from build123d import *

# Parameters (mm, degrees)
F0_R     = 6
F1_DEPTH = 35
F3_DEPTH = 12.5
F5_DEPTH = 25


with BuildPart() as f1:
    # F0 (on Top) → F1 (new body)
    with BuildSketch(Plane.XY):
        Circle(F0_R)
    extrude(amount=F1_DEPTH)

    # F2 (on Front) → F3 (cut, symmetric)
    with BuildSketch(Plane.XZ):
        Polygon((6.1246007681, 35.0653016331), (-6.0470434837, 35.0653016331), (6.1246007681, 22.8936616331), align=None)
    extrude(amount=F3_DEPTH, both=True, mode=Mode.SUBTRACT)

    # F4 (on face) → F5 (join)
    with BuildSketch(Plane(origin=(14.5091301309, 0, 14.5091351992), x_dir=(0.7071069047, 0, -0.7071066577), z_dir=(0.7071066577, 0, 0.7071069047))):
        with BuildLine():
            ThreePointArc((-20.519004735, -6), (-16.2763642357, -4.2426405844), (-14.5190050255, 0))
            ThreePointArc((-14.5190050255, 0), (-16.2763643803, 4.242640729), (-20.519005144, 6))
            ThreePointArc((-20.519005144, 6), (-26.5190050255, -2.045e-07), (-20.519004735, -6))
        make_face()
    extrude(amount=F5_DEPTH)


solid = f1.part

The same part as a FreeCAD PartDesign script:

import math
import FreeCAD as App
import Part
import Sketcher
Q = App.Units.Quantity


def add_polygon(sketch, points):
    """Adds a closed chain of lines whose ends are joined by coincident constraints."""
    first, n = sketch.GeometryCount, len(points)
    for a, b in zip(points, points[1:] + points[:1]):
        sketch.addGeometry(Part.LineSegment(App.Vector(*a, 0), App.Vector(*b, 0)), False)
    for i in range(n):
        sketch.addConstraint(Sketcher.Constraint("Coincident", first + i, 2, first + (i + 1) % n, 1))

doc = App.newDocument("Part")
body = doc.addObject("PartDesign::Body", "Body")

# Sketch on XY plane
sketch1 = doc.addObject("Sketcher::SketchObject", "Sketch")
body.addObject(sketch1)
sketch1.AttachmentSupport = (doc.XY_Plane, [""])
sketch1.MapMode = "FlatFace"
sketch1.addGeometry(Part.Circle(App.Vector(0, 0, 0), App.Vector(0, 0, 1), 6), False)
sketch1.addConstraint(Sketcher.Constraint("Coincident", 0, 3, -1, 1))
sketch1.addConstraint(Sketcher.Constraint("Diameter", 0, 12.0))
pad1 = doc.addObject("PartDesign::Pad", "Pad")
body.addObject(pad1)
pad1.Profile = sketch1
pad1.Length = 35

# Sketch on XZ plane
sketch2 = doc.addObject("Sketcher::SketchObject", "Sketch001")
body.addObject(sketch2)
sketch2.AttachmentSupport = (doc.XZ_Plane, [""])
sketch2.MapMode = "FlatFace"
add_polygon(sketch2, [(6, 35), (-6, 35), (6, 23)])  # lines 0-2
sketch2.addConstraint(Sketcher.Constraint("Horizontal", 0))
sketch2.addConstraint(Sketcher.Constraint("Vertical", 2))
sketch2.addConstraint(Sketcher.Constraint("Angle", 1, Q("-44.99999 deg")))
sketch2.addConstraint(Sketcher.Constraint("Distance", 1, 17.213301))
sketch2.addConstraint(Sketcher.Constraint("DistanceY", -1, 1, 0, 2, 35.065302))
sketch2.addConstraint(Sketcher.Constraint("DistanceX", -1, 1, 1, 2, 6.124601))
pocket1 = doc.addObject("PartDesign::Pocket", "Pocket")
body.addObject(pocket1)
pocket1.Profile = sketch2
pocket1.Length = 25
pocket1.Midplane = True

# Sketch on an angled plane
sketch3 = doc.addObject("Sketcher::SketchObject", "Sketch002")
body.addObject(sketch3)
sketch3.Placement = App.Placement(App.Vector(14.50913, 0, 14.509135), App.Rotation(App.Vector(0.707106905, 0, -0.707106658), App.Vector(0, 1.000000001, 0), App.Vector(0.707106658, 0, 0.707106905), "ZXY"))
sketch3.addGeometry(Part.ArcOfCircle(Part.Circle(App.Vector(-21, 0, 0), App.Vector(0, 0, 1), 6), math.radians(-90), math.radians(0)), False)
sketch3.addGeometry(Part.ArcOfCircle(Part.Circle(App.Vector(-21, 0, 0), App.Vector(0, 0, 1), 6), math.radians(0), math.radians(90)), False)
sketch3.addGeometry(Part.ArcOfCircle(Part.Circle(App.Vector(-21, 0, 0), App.Vector(0, 0, 1), 6), math.radians(90), math.radians(270)), False)
sketch3.addConstraint(Sketcher.Constraint("Tangent", 0, 2, 1, 1))
sketch3.addConstraint(Sketcher.Constraint("Tangent", 1, 2, 2, 1))
sketch3.addConstraint(Sketcher.Constraint("Tangent", 2, 2, 0, 1))
sketch3.addConstraint(Sketcher.Constraint("Symmetric", 1, 2, 2, 2, -1))
sketch3.addConstraint(Sketcher.Constraint("PointOnObject", 0, 2, -1))
sketch3.addConstraint(Sketcher.Constraint("Vertical", 2, 3, 1, 2))
sketch3.addConstraint(Sketcher.Constraint("Radius", 0, 6.0))
sketch3.addConstraint(Sketcher.Constraint("DistanceX", 0, 3, -1, 1, 20.519005))
pad2 = doc.addObject("PartDesign::Pad", "Pad001")
body.addObject(pad2)
pad2.Profile = sketch3
pad2.Length = 25

doc.recompute()
